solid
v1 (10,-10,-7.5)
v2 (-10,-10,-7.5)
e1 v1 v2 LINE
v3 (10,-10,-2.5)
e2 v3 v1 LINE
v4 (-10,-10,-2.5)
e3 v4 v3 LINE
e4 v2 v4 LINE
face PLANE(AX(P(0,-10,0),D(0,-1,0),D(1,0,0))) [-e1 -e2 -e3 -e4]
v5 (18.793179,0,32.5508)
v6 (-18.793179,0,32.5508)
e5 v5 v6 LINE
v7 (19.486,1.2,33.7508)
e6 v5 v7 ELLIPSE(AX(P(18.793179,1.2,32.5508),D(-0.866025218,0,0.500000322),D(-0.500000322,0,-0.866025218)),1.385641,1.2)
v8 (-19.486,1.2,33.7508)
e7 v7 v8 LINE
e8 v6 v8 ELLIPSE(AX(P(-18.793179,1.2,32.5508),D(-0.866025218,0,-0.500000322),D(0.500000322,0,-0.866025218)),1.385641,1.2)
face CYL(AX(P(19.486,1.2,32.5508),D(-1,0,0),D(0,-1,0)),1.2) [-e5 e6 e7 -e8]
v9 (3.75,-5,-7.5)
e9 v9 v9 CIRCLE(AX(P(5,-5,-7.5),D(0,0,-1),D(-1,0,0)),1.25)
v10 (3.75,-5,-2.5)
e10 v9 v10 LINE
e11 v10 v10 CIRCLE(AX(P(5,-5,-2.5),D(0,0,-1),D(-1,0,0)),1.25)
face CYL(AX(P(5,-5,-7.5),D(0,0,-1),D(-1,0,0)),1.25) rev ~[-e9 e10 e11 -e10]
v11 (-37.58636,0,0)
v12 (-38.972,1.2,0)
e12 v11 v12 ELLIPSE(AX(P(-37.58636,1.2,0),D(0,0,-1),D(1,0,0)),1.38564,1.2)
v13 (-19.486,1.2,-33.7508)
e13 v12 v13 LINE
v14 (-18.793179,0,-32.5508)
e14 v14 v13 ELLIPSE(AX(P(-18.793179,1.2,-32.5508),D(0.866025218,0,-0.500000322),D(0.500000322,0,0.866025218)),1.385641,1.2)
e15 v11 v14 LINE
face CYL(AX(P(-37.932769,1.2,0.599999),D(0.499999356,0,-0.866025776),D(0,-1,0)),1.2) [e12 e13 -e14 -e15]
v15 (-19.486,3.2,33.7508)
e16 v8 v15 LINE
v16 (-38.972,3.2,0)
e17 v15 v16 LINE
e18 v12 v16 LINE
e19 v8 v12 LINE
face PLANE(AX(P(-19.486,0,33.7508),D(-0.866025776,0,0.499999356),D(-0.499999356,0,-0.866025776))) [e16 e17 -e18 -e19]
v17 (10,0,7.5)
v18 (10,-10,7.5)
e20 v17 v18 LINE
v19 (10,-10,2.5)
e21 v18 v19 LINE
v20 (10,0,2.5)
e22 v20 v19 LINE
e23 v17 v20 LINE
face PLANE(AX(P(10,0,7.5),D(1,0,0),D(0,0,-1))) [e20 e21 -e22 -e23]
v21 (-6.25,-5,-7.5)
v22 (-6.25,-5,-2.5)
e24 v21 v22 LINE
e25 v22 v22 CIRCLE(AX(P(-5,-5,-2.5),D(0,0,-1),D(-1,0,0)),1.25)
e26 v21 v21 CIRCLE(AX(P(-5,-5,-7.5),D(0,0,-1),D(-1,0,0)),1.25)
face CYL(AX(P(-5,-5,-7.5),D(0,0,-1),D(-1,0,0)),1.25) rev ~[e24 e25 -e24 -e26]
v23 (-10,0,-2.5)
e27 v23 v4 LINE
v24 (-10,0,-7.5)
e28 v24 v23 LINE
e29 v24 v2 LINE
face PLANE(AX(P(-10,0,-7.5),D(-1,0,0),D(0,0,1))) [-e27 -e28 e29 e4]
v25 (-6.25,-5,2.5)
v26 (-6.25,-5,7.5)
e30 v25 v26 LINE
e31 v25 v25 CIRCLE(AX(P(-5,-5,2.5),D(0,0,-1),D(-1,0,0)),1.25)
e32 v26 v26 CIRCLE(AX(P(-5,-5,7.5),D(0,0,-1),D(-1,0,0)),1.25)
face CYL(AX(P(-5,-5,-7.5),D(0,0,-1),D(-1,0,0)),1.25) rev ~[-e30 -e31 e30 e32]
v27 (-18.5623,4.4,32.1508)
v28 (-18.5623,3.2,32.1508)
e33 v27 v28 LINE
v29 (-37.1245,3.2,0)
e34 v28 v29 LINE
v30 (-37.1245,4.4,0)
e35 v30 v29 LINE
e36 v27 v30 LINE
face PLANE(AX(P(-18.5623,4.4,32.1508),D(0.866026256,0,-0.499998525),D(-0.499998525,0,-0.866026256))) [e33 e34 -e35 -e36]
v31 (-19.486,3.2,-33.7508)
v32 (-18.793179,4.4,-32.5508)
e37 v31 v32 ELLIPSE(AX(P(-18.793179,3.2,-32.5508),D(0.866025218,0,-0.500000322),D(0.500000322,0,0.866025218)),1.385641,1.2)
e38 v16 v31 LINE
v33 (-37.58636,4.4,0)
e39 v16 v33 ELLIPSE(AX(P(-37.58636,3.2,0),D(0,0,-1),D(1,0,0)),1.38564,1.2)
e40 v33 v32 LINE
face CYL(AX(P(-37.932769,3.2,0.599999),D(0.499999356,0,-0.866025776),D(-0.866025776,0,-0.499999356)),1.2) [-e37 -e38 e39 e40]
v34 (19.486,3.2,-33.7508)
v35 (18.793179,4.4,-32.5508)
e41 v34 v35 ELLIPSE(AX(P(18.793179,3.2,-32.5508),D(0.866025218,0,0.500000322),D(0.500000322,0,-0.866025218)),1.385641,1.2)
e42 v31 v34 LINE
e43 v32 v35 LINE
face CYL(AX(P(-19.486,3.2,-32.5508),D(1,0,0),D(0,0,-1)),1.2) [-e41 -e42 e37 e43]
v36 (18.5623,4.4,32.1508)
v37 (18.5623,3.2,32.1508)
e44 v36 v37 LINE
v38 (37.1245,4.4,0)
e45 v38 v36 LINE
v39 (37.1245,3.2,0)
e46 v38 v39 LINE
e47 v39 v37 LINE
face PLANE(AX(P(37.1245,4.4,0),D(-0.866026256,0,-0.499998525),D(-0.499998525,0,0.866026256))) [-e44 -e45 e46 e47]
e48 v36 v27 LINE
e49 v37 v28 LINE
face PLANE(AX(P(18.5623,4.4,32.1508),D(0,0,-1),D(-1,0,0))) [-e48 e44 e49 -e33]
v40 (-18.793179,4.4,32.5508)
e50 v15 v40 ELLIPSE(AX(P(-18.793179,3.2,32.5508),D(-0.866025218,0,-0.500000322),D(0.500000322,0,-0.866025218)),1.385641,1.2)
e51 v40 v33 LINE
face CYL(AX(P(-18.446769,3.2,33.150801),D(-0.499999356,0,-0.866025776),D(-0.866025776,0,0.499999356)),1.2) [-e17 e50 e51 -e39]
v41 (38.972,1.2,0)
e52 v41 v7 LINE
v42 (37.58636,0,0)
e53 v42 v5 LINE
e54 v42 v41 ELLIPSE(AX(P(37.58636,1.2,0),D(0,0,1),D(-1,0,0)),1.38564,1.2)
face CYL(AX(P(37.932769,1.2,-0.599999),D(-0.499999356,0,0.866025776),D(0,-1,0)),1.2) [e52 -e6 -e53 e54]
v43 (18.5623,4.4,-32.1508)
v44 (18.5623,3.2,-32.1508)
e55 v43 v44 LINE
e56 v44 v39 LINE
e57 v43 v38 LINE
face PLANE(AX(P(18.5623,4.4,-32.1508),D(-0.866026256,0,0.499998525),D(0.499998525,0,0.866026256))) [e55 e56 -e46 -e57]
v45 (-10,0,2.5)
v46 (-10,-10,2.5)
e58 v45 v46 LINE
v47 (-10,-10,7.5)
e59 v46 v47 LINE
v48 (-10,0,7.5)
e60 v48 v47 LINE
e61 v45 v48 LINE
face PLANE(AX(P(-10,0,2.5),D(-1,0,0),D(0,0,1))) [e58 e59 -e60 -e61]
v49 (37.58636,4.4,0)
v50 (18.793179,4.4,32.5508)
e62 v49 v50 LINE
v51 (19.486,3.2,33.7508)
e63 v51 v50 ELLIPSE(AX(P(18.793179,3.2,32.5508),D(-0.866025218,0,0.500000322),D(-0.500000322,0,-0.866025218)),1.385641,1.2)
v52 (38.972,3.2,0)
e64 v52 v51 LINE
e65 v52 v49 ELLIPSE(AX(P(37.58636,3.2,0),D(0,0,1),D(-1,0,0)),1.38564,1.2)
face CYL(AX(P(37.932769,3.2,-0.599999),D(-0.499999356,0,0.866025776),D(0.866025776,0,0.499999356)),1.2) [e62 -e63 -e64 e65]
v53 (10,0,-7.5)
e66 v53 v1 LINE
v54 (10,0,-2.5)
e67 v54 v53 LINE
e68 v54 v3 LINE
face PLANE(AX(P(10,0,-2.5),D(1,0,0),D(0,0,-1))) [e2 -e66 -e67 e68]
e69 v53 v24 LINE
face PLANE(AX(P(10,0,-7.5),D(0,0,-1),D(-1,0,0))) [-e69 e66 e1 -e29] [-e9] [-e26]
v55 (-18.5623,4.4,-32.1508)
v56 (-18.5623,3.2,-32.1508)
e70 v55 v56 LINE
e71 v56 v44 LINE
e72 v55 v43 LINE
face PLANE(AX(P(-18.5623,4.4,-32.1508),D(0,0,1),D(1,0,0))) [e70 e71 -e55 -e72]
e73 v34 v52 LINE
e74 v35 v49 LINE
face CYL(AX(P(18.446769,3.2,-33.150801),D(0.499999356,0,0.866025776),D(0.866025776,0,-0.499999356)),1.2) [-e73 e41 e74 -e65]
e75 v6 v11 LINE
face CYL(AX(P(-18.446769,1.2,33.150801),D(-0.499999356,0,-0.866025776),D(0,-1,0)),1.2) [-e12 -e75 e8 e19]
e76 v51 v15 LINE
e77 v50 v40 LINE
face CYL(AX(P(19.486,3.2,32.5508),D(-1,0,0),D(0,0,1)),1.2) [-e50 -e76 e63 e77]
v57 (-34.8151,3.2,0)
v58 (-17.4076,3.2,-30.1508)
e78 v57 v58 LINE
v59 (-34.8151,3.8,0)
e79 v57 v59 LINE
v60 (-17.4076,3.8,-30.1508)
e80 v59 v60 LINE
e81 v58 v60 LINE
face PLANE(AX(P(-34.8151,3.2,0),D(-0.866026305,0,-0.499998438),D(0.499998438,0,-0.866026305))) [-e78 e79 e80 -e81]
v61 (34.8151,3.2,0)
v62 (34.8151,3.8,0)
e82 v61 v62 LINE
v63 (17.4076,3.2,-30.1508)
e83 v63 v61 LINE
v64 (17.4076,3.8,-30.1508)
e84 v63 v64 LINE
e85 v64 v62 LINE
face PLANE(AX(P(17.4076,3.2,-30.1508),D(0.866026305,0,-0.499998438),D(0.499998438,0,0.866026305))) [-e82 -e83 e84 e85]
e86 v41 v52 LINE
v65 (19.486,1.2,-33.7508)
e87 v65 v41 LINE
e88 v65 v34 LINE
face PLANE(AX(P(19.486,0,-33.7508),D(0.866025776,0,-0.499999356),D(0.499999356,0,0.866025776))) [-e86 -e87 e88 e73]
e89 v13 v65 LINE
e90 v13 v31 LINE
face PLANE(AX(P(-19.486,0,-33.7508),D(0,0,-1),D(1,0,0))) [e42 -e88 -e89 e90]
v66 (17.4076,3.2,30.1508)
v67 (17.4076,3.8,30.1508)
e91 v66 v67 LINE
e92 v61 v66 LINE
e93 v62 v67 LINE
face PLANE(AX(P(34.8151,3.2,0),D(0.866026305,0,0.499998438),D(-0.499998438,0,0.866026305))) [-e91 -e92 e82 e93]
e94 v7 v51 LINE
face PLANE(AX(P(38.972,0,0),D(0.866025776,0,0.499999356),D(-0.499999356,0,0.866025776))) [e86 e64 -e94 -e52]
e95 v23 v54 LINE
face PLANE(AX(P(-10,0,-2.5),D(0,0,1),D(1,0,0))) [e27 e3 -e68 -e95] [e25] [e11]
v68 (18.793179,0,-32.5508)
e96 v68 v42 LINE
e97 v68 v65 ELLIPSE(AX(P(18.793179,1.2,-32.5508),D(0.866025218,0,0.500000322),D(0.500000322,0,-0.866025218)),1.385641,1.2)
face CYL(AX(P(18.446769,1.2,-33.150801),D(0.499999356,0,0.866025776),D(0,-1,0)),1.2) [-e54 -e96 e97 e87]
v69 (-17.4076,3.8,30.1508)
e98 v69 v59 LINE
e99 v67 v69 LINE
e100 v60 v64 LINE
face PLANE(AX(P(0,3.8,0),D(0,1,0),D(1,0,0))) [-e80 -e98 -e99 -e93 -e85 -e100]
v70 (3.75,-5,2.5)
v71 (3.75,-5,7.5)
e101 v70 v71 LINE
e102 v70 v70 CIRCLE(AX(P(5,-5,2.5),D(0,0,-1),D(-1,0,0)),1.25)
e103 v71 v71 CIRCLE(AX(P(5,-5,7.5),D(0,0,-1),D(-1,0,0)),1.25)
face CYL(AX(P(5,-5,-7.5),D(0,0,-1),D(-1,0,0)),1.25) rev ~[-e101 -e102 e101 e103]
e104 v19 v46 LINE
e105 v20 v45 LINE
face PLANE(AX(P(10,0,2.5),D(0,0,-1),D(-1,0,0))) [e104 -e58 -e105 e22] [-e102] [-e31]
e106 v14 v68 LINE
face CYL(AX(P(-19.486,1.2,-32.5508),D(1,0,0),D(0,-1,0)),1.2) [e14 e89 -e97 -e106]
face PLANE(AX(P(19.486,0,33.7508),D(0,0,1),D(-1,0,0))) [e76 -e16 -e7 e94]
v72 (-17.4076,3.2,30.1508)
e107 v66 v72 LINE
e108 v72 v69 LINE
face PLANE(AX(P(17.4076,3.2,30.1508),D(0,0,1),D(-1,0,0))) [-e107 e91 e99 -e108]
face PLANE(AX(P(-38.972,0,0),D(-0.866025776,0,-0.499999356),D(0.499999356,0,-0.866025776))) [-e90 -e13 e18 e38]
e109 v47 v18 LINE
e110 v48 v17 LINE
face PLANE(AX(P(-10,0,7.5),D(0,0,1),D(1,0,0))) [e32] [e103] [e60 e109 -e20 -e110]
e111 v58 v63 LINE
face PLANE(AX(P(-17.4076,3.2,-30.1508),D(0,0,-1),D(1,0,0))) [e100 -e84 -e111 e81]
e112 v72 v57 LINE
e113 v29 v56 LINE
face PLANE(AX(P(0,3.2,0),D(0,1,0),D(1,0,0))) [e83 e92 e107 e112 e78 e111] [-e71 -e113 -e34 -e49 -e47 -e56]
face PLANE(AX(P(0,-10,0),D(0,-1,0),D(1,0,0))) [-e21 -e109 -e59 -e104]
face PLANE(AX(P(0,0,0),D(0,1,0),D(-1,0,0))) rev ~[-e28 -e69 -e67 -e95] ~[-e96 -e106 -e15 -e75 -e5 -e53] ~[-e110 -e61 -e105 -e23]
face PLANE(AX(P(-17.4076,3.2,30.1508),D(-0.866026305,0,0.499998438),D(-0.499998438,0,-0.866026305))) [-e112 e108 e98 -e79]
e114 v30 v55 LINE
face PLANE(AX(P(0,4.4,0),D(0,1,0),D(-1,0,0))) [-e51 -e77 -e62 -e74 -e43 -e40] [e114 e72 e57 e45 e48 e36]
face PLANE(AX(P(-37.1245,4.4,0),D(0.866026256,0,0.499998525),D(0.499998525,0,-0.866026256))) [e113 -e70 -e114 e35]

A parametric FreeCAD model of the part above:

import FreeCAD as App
import Part
import Sketcher

V = App.Vector
Q = App.Units.Quantity


def edges_at(feature, points):
    """Names of the edges that pass closest to the given points."""
    edges = feature.Shape.Edges
    near = lambda p: min(range(len(edges)), key=lambda i: edges[i].distToShape(Part.Vertex(*p))[0])
    return sorted({f"Edge{near(p) + 1}" for p in points})


def add_polygon(sketch, points):
    """Adds a closed chain of lines whose ends are joined by coincident constraints."""
    first, n = sketch.GeometryCount, len(points)
    for a, b in zip(points, points[1:] + points[:1]):
        sketch.addGeometry(Part.LineSegment(App.Vector(*a, 0), App.Vector(*b, 0)), False)
    for i in range(n):
        sketch.addConstraint(Sketcher.Constraint("Coincident", first + i, 2, first + (i + 1) % n, 1))

doc = App.newDocument("Part")
params = doc.addObject("Spreadsheet::Sheet", "Params")
for row, (alias, value) in enumerate([
    ("pad1_length", "4.4 mm"),
    ("pocket1_length", "1.2 mm"),
    ("pad2_length", "0.6 mm"),
    ("fillet_radius", "1.2 mm"),
    ("sketch4_width", "20 mm"),
    ("sketch4_height", "5 mm"),
    ("pad3_length", "10 mm"),
    ("sketch5_diameter", "2.5 mm"),
    ("pocket2_length", "15 mm"),
], start=1):
    params.set(f"A{row}", alias)
    params.set(f"B{row}", "=" + value)
    params.setAlias(f"B{row}", alias)

body = doc.addObject("PartDesign::Body", "Body")

# Sketch on XZ plane
sketch1 = body.newObject("Sketcher::SketchObject", "Sketch")
sketch1.AttachmentSupport = (doc.getObject("XZ_Plane"), [""])
sketch1.MapMode = "FlatFace"
add_polygon(sketch1, [(19, -34), (-19, -34), (-39, 0), (-19, 34), (19, 34), (39, 0)])  # lines 0-5
sketch1.addConstraint([
    Sketcher.Constraint("Horizontal", 0),
    Sketcher.Constraint("Horizontal", 3),
    Sketcher.Constraint("Symmetric", 0, 2, 3, 2, -1, 1),
    Sketcher.Constraint("Symmetric", 1, 2, 4, 2, -1, 1),
    Sketcher.Constraint("PointOnObject", 1, 2, -1),
    Sketcher.Constraint("Parallel", 2, 5),
    Sketcher.Constraint("Vertical", 0, 2, 2, 2),
    Sketcher.Constraint("Angle", 1, Q("120 deg")),
    Sketcher.Constraint("DistanceX", 0, 2, 0, 1, 38.972),
    Sketcher.Constraint("Distance", 1, 38.972),
])
pad1 = body.newObject("PartDesign::Pad", "Pad")
pad1.Profile = sketch1
pad1.setExpression("Length", "Params.pad1_length")
pad1.Reversed = True

# Sketch on XZ plane
sketch2 = body.newObject("Sketcher::SketchObject", "Sketch001")
sketch2.AttachmentSupport = (doc.getObject("XZ_Plane"), [""])
sketch2.MapMode = "FlatFace"
sketch2.AttachmentOffset = App.Placement(V(0, 0, -4.4), App.Rotation())
add_polygon(sketch2, [(19, -32), (-19, -32), (-37, 0), (-19, 32), (19, 32), (37, 0)])  # lines 0-5
sketch2.addConstraint([
    Sketcher.Constraint("Horizontal", 0),
    Sketcher.Constraint("Horizontal", 3),
    Sketcher.Constraint("Symmetric", 0, 2, 3, 2, -1, 1),
    Sketcher.Constraint("Symmetric", 1, 2, 4, 2, -1, 1),
    Sketcher.Constraint("PointOnObject", 1, 2, -1),
    Sketcher.Constraint("Parallel", 2, 5),
    Sketcher.Constraint("Vertical", 0, 2, 2, 2),
    Sketcher.Constraint("Angle", 1, Q("120 deg")),
    Sketcher.Constraint("DistanceX", 0, 2, 0, 1, 37.1246),
    Sketcher.Constraint("DistanceX", 1, 2, 4, 2, 74.249),
])
pocket1 = body.newObject("PartDesign::Pocket", "Pocket")
pocket1.Profile = sketch2
pocket1.setExpression("Length", "Params.pocket1_length")
pocket1.Reversed = True

# Sketch on XZ plane
sketch3 = body.newObject("Sketcher::SketchObject", "Sketch002")
sketch3.AttachmentSupport = (doc.getObject("XZ_Plane"), [""])
sketch3.MapMode = "FlatFace"
sketch3.AttachmentOffset = App.Placement(V(0, 0, -3.2), App.Rotation())
add_polygon(sketch3, [(-17, 30), (17, 30), (35, 0), (17, -30), (-17, -30), (-35, 0)])  # lines 0-5
sketch3.addConstraint([
    Sketcher.Constraint("Horizontal", 0),
    Sketcher.Constraint("Horizontal", 3),
    Sketcher.Constraint("Symmetric", 0, 2, 3, 2, -1, 1),
    Sketcher.Constraint("Symmetric", 1, 2, 4, 2, -1, 1),
    Sketcher.Constraint("PointOnObject", 1, 2, -1),
    Sketcher.Constraint("Parallel", 2, 5),
    Sketcher.Constraint("Vertical", 0, 2, 2, 2),
    Sketcher.Constraint("Angle", 1, Q("-60 deg")),
    Sketcher.Constraint("Distance", 1, 34.815),
    Sketcher.Constraint("DistanceX", 0, 1, 0, 2, 34.8152),
])
pad2 = body.newObject("PartDesign::Pad", "Pad001")
pad2.Profile = sketch3
pad2.setExpression("Length", "Params.pad2_length")
pad2.Reversed = True
doc.recompute()

fillet = body.newObject("PartDesign::Fillet", "Fillet")
fillet.Base = (pad2, edges_at(pad2, [
    (0, 4.4, -33.751),
    (0, 0, -33.751),
    (-29.229, 4.4, -16.875),
    (-29.229, 0, -16.875),
    (-29.229, 4.4, 16.875),
    (-29.229, 0, 16.875),
    (0, 0, 33.751),
    (0, 4.4, 33.751),
    (29.229, 0, 16.875),
    (29.229, 4.4, 16.875),
    (29.229, 4.4, -16.875),
    (29.229, 0, -16.875),
]))
fillet.setExpression("Radius", "Params.fillet_radius")

# Sketch on XZ plane
sketch4 = body.newObject("Sketcher::SketchObject", "Sketch003")
sketch4.AttachmentSupport = (doc.getObject("XZ_Plane"), [""])
sketch4.MapMode = "FlatFace"
add_polygon(sketch4, [(-10, -8), (10, -8), (10, -2), (-10, -2)])  # lines 0-3
add_polygon(sketch4, [(-10, 2), (10, 2), (10, 8), (-10, 8)])  # lines 4-7
sketch4.addConstraint([
    Sketcher.Constraint("Horizontal", 0),
    Sketcher.Constraint("Vertical", 1),
    Sketcher.Constraint("Horizontal", 2),
    Sketcher.Constraint("Vertical", 3),
    Sketcher.Constraint("Horizontal", 4),
    Sketcher.Constraint("Vertical", 5),
    Sketcher.Constraint("Horizontal", 6),
    Sketcher.Constraint("Vertical", 7),
    Sketcher.Constraint("Symmetric", 2, 2, 4, 2, -1, 1),
    Sketcher.Constraint("Symmetric", 0, 2, 6, 2, -1, 1),
    Sketcher.Constraint("Vertical", 1, 2, 4, 2),
    Sketcher.Constraint("DistanceX", 0, 1, 0, 2, 20.0),
    Sketcher.Constraint("DistanceY", 1, 1, 1, 2, 5.0),
    Sketcher.Constraint("DistanceY", 1, 2, 4, 2, 5.0),
])
sketch4.setExpression("Constraints[19]", "Params.sketch4_width")
sketch4.setExpression("Constraints[20]", "Params.sketch4_height")
pad3 = body.newObject("PartDesign::Pad", "Pad002")
pad3.Profile = sketch4
pad3.setExpression("Length", "Params.pad3_length")

# Sketch on XY plane
sketch5 = body.newObject("Sketcher::SketchObject", "Sketch004")
sketch5.AttachmentSupport = (doc.getObject("XY_Plane"), [""])
sketch5.MapMode = "FlatFace"
sketch5.AttachmentOffset = App.Placement(V(0, 0, -7.5), App.Rotation())
sketch5.addGeometry([
    Part.Circle(V(-5, -5, 0), V(0, 0, 1), 1.2),
    Part.Circle(V(5, -5, 0), V(0, 0, 1), 1.2),
], False)
sketch5.addConstraint([
    Sketcher.Constraint("Equal", 0, 1),
    Sketcher.Constraint("Symmetric", 0, 3, 1, 3, -2),
    Sketcher.Constraint("Diameter", 0, 2.5),
    Sketcher.Constraint("DistanceX", 0, 3, -1, 1, 5.0),
    Sketcher.Constraint("DistanceY", 0, 3, -1, 1, 5.0),
])
sketch5.setExpression("Constraints[2]", "Params.sketch5_diameter")
pocket2 = body.newObject("PartDesign::Pocket", "Pocket001")
pocket2.Profile = sketch5
pocket2.setExpression("Length", "Params.pocket2_length")
pocket2.Reversed = True

doc.recompute()
